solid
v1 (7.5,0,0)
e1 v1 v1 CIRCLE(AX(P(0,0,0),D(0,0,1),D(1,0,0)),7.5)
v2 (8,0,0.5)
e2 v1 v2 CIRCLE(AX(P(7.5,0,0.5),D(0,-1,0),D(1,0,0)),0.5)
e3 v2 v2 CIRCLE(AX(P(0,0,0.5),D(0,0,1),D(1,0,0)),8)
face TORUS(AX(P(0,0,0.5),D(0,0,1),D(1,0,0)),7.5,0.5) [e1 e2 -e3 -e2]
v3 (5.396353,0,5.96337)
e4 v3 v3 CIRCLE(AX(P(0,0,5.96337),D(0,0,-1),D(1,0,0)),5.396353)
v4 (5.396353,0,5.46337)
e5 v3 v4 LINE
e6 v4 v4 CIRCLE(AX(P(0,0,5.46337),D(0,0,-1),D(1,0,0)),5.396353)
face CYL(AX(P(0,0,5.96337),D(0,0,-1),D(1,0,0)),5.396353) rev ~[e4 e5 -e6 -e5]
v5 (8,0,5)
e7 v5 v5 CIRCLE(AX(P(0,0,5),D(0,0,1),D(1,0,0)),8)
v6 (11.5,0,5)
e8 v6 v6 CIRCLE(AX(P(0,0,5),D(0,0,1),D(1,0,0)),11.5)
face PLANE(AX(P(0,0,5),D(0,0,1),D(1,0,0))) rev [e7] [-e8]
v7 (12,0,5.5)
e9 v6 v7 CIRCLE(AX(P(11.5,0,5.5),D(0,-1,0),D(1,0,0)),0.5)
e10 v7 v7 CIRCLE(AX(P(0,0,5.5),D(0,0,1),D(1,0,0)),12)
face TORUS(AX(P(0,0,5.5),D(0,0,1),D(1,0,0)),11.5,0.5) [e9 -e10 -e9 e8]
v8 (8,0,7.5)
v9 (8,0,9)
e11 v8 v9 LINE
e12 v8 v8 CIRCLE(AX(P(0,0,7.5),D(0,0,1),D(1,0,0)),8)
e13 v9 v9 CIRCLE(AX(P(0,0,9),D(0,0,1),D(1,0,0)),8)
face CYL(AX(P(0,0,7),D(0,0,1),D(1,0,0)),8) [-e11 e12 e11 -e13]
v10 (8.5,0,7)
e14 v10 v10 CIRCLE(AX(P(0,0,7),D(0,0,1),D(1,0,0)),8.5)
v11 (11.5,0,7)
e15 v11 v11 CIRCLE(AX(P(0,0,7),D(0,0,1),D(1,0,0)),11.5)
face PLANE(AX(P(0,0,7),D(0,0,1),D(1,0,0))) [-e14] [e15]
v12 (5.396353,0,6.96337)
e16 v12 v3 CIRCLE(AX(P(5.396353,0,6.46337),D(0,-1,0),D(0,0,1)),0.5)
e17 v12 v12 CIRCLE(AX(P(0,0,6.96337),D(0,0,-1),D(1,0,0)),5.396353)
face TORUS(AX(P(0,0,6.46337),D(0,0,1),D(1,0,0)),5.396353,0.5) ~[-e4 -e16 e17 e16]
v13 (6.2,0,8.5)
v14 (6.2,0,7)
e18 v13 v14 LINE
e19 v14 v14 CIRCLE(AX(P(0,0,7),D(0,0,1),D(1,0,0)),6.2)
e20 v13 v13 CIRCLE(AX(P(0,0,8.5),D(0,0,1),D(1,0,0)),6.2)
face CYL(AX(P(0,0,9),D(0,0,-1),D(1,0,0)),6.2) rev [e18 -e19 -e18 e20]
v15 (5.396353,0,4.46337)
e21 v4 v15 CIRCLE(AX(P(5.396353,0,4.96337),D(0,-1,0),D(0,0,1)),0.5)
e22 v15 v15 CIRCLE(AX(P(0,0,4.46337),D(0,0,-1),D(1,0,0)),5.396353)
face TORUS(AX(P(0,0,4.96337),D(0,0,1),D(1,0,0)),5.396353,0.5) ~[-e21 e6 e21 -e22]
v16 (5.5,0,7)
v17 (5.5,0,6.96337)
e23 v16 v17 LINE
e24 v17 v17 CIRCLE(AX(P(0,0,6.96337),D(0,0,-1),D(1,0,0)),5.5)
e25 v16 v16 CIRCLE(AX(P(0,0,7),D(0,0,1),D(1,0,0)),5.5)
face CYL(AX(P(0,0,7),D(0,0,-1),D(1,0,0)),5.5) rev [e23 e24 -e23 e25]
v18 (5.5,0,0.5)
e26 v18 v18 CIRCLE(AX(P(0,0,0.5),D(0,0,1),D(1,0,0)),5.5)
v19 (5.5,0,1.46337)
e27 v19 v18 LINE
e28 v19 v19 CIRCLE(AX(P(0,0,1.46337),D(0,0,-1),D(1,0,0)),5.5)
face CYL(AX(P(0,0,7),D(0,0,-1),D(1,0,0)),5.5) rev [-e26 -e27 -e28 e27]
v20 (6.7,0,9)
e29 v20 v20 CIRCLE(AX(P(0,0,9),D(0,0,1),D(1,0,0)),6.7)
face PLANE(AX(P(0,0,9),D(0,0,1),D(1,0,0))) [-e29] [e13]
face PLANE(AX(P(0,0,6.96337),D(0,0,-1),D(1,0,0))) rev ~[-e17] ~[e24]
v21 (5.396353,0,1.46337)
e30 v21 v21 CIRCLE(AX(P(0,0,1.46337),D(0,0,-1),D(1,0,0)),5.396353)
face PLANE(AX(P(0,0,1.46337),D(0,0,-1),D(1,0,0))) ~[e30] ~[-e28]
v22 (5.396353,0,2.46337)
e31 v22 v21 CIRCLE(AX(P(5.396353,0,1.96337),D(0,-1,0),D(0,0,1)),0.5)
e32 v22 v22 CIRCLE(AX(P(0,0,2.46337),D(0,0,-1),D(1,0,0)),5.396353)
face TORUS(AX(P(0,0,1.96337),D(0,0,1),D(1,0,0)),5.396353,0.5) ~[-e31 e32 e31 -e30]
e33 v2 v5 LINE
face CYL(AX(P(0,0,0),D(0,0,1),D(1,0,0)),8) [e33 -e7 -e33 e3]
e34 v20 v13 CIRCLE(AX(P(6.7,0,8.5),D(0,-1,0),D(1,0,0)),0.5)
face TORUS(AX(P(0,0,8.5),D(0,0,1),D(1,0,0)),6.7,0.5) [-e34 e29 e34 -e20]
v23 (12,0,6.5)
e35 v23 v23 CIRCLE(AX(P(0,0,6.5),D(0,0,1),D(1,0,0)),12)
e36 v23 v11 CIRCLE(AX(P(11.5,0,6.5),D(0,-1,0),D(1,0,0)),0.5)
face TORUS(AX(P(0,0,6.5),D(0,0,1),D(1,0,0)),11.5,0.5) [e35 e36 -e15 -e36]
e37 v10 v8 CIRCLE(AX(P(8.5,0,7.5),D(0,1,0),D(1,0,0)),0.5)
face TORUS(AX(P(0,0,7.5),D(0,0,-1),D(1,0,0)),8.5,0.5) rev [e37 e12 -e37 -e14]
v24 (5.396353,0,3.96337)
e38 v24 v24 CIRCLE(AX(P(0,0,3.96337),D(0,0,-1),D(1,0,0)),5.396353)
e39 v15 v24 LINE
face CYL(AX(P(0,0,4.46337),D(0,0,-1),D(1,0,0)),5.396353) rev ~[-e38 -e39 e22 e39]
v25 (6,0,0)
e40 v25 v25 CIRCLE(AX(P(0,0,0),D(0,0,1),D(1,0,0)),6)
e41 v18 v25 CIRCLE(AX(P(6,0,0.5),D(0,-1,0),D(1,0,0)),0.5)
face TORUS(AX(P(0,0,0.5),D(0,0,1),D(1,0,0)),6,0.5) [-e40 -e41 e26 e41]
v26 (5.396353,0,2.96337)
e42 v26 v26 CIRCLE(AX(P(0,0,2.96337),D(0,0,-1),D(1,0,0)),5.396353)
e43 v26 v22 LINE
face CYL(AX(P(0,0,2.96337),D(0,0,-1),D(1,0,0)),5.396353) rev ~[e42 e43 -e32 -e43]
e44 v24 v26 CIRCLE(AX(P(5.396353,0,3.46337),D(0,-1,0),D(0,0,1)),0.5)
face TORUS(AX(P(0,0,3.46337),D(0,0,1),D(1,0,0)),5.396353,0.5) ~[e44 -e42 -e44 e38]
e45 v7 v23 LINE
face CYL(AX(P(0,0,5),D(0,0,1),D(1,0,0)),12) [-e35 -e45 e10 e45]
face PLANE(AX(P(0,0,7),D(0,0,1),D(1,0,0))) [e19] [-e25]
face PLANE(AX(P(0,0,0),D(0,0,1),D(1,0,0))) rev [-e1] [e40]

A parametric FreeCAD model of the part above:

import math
import FreeCAD as App
import Part
import Sketcher

V = App.Vector


def edges_at(feature, points):
    """Names of the edges that pass closest to the given points."""
    edges = feature.Shape.Edges
    near = lambda p: min(range(len(edges)), key=lambda i: edges[i].distToShape(Part.Vertex(*p))[0])
    return sorted({f"Edge{near(p) + 1}" for p in points})

doc = App.newDocument("Part")
body = doc.addObject("PartDesign::Body", "Body")

sketch1 = doc.addObject("Sketcher::SketchObject", "Sketch")
body.addObject(sketch1)
sketch1.AttachmentSupport = (doc.XZ_Plane, [""])
sketch1.MapMode = "FlatFace"
sketch1.addGeometry(Part.LineSegment(V(5.5, 7, 0), V(5.5, 0, 0)), False)
sketch1.addGeometry(Part.LineSegment(V(5.5, 0, 0), V(8, 0, 0)), False)
sketch1.addGeometry(Part.LineSegment(V(8, 0, 0), V(8, 5, 0)), False)
sketch1.addGeometry(Part.LineSegment(V(8, 5, 0), V(12, 5, 0)), False)
sketch1.addGeometry(Part.LineSegment(V(12, 5, 0), V(12, 7, 0)), False)
sketch1.addGeometry(Part.LineSegment(V(12, 7, 0), V(8, 7, 0)), False)
sketch1.addGeometry(Part.LineSegment(V(8, 7, 0), V(8, 9, 0)), False)
sketch1.addGeometry(Part.LineSegment(V(8, 9, 0), V(6.2, 9, 0)), False)
sketch1.addGeometry(Part.LineSegment(V(6.2, 9, 0), V(6.2, 7, 0)), False)
sketch1.addGeometry(Part.LineSegment(V(6.2, 7, 0), V(5.5, 7, 0)), False)
sketch1.addConstraint(Sketcher.Constraint("Coincident", 0, 2, 1, 1))
sketch1.addConstraint(Sketcher.Constraint("Coincident", 1, 2, 2, 1))
sketch1.addConstraint(Sketcher.Constraint("Coincident", 2, 2, 3, 1))
sketch1.addConstraint(Sketcher.Constraint("Coincident", 3, 2, 4, 1))
sketch1.addConstraint(Sketcher.Constraint("Coincident", 4, 2, 5, 1))
sketch1.addConstraint(Sketcher.Constraint("Coincident", 5, 2, 6, 1))
sketch1.addConstraint(Sketcher.Constraint("Coincident", 6, 2, 7, 1))
sketch1.addConstraint(Sketcher.Constraint("Coincident", 7, 2, 8, 1))
sketch1.addConstraint(Sketcher.Constraint("Coincident", 8, 2, 9, 1))
sketch1.addConstraint(Sketcher.Constraint("Coincident", 9, 2, 0, 1))
sketch1.addConstraint(Sketcher.Constraint("Vertical", 0))
sketch1.addConstraint(Sketcher.Constraint("Horizontal", 1))
sketch1.addConstraint(Sketcher.Constraint("Vertical", 2))
sketch1.addConstraint(Sketcher.Constraint("Horizontal", 3))
sketch1.addConstraint(Sketcher.Constraint("Vertical", 4))
sketch1.addConstraint(Sketcher.Constraint("Horizontal", 5))
sketch1.addConstraint(Sketcher.Constraint("Vertical", 6))
sketch1.addConstraint(Sketcher.Constraint("Horizontal", 7))
sketch1.addConstraint(Sketcher.Constraint("Vertical", 8))
sketch1.addConstraint(Sketcher.Constraint("Horizontal", 9))
sketch1.addConstraint(Sketcher.Constraint("PointOnObject", 0, 2, -1))
sketch1.addConstraint(Sketcher.Constraint("Horizontal", 5, 2, 8, 2))
sketch1.addConstraint(Sketcher.Constraint("Vertical", 2, 2, 5, 2))
sketch1.addConstraint(Sketcher.Constraint("Equal", 4, 6))
sketch1.addConstraint(Sketcher.Constraint("DistanceX", 3, 1, 3, 2, 4.0))
sketch1.addConstraint(Sketcher.Constraint("DistanceY", 0, 2, 0, 1, 7.0))
sketch1.addConstraint(Sketcher.Constraint("DistanceY", 2, 1, 2, 2, 5.0))
sketch1.addConstraint(Sketcher.Constraint("DistanceX", 1, 1, 1, 2, 2.5))
sketch1.addConstraint(Sketcher.Constraint("DistanceX", 7, 2, 7, 1, 1.8))
sketch1.addConstraint(Sketcher.Constraint("DistanceX", -1, 1, 1, 2, 8.0))
revolution = doc.addObject("PartDesign::Revolution", "Revolution")
body.addObject(revolution)
revolution.Profile = sketch1
revolution.ReferenceAxis = (sketch1, ["V_Axis"])
revolution.Angle = 360
doc.recompute()

fillet = doc.addObject("PartDesign::Fillet", "Fillet")
body.addObject(fillet)
fillet.Base = (revolution, edges_at(revolution, [
    (-8, 0, 7),
    (-6.2, 0, 9),
    (-12, 0, 7),
    (-12, 0, 5),
    (-8, 0, 0),
    (-5.5, 0, 0),
]))
fillet.Radius = 0.5

sketch2 = doc.addObject("Sketcher::SketchObject", "Sketch001")
body.addObject(sketch2)
sketch2.AttachmentSupport = (doc.XZ_Plane, [""])
sketch2.MapMode = "FlatFace"
sketch2.addGeometry(Part.LineSegment(V(5.4, 2.96, 0), V(5.4, 2.46, 0)), False)
sketch2.addGeometry(Part.ArcOfCircle(Part.Circle(V(5.4, 1.96, 0), V(0, 0, 1), 0.5), math.radians(90), math.radians(270)), False)
sketch2.addGeometry(Part.LineSegment(V(5.4, 1.46, 0), V(5.63, 1.46, 0)), False)
sketch2.addGeometry(Part.LineSegment(V(5.63, 1.46, 0), V(5.63, 6.96, 0)), False)
sketch2.addGeometry(Part.LineSegment(V(5.63, 6.96, 0), V(5.4, 6.96, 0)), False)
sketch2.addGeometry(Part.ArcOfCircle(Part.Circle(V(5.4, 6.46, 0), V(0, 0, 1), 0.5), math.radians(90), math.radians(270)), False)
sketch2.addGeometry(Part.LineSegment(V(5.4, 5.96, 0), V(5.4, 5.46, 0)), False)
sketch2.addGeometry(Part.ArcOfCircle(Part.Circle(V(5.4, 4.96, 0), V(0, 0, 1), 0.5), math.radians(90), math.radians(270)), False)
sketch2.addGeometry(Part.LineSegment(V(5.4, 4.46, 0), V(5.4, 3.96, 0)), False)
sketch2.addGeometry(Part.ArcOfCircle(Part.Circle(V(5.4, 3.46, 0), V(0, 0, 1), 0.5), math.radians(90), math.radians(270)), False)
sketch2.addConstraint(Sketcher.Constraint("Coincident", 0, 2, 1, 1))
sketch2.addConstraint(Sketcher.Constraint("Tangent", 1, 2, 2, 1))
sketch2.addConstraint(Sketcher.Constraint("Coincident", 2, 2, 3, 1))
sketch2.addConstraint(Sketcher.Constraint("Coincident", 3, 2, 4, 1))
sketch2.addConstraint(Sketcher.Constraint("Tangent", 4, 2, 5, 1))
sketch2.addConstraint(Sketcher.Constraint("Coincident", 5, 2, 6, 1))
sketch2.addConstraint(Sketcher.Constraint("Coincident", 6, 2, 7, 1))
sketch2.addConstraint(Sketcher.Constraint("Coincident", 7, 2, 8, 1))
sketch2.addConstraint(Sketcher.Constraint("Coincident", 8, 2, 9, 1))
sketch2.addConstraint(Sketcher.Constraint("Coincident", 9, 2, 0, 1))
sketch2.addConstraint(Sketcher.Constraint("Vertical", 0))
sketch2.addConstraint(Sketcher.Constraint("Horizontal", 2))
sketch2.addConstraint(Sketcher.Constraint("Vertical", 3))
sketch2.addConstraint(Sketcher.Constraint("Horizontal", 4))
sketch2.addConstraint(Sketcher.Constraint("Vertical", 6))
sketch2.addConstraint(Sketcher.Constraint("Vertical", 8))
sketch2.addConstraint(Sketcher.Constraint("Equal", 1, 5))
sketch2.addConstraint(Sketcher.Constraint("Equal", 5, 7))
sketch2.addConstraint(Sketcher.Constraint("Equal", 7, 9))
sketch2.addConstraint(Sketcher.Constraint("Vertical", 1, 3, 5, 3))
sketch2.addConstraint(Sketcher.Constraint("Vertical", 5, 3, 7, 3))
sketch2.addConstraint(Sketcher.Constraint("Vertical", 7, 3, 9, 3))
sketch2.addConstraint(Sketcher.Constraint("Vertical", 9, 3, 0, 2))
sketch2.addConstraint(Sketcher.Constraint("Vertical", 4, 2, 5, 2))
sketch2.addConstraint(Sketcher.Constraint("Vertical", 6, 2, 7, 2))
sketch2.addConstraint(Sketcher.Constraint("Equal", 0, 6))
sketch2.addConstraint(Sketcher.Constraint("Equal", 6, 8))
sketch2.addConstraint(Sketcher.Constraint("Radius", 1, 0.5))
sketch2.addConstraint(Sketcher.Constraint("DistanceY", 0, 2, 0, 1, 0.5))
sketch2.addConstraint(Sketcher.Constraint("DistanceX", 2, 1, 2, 2, 0.232662))
sketch2.addConstraint(Sketcher.Constraint("DistanceY", -1, 1, 1, 3, 1.96337))
sketch2.addConstraint(Sketcher.Constraint("DistanceX", -1, 1, 1, 3, 5.396353))
revolution2 = doc.addObject("PartDesign::Revolution", "Revolution001")
body.addObject(revolution2)
revolution2.Profile = sketch2
revolution2.ReferenceAxis = (sketch2, ["V_Axis"])
revolution2.Angle = 360

doc.recompute()
